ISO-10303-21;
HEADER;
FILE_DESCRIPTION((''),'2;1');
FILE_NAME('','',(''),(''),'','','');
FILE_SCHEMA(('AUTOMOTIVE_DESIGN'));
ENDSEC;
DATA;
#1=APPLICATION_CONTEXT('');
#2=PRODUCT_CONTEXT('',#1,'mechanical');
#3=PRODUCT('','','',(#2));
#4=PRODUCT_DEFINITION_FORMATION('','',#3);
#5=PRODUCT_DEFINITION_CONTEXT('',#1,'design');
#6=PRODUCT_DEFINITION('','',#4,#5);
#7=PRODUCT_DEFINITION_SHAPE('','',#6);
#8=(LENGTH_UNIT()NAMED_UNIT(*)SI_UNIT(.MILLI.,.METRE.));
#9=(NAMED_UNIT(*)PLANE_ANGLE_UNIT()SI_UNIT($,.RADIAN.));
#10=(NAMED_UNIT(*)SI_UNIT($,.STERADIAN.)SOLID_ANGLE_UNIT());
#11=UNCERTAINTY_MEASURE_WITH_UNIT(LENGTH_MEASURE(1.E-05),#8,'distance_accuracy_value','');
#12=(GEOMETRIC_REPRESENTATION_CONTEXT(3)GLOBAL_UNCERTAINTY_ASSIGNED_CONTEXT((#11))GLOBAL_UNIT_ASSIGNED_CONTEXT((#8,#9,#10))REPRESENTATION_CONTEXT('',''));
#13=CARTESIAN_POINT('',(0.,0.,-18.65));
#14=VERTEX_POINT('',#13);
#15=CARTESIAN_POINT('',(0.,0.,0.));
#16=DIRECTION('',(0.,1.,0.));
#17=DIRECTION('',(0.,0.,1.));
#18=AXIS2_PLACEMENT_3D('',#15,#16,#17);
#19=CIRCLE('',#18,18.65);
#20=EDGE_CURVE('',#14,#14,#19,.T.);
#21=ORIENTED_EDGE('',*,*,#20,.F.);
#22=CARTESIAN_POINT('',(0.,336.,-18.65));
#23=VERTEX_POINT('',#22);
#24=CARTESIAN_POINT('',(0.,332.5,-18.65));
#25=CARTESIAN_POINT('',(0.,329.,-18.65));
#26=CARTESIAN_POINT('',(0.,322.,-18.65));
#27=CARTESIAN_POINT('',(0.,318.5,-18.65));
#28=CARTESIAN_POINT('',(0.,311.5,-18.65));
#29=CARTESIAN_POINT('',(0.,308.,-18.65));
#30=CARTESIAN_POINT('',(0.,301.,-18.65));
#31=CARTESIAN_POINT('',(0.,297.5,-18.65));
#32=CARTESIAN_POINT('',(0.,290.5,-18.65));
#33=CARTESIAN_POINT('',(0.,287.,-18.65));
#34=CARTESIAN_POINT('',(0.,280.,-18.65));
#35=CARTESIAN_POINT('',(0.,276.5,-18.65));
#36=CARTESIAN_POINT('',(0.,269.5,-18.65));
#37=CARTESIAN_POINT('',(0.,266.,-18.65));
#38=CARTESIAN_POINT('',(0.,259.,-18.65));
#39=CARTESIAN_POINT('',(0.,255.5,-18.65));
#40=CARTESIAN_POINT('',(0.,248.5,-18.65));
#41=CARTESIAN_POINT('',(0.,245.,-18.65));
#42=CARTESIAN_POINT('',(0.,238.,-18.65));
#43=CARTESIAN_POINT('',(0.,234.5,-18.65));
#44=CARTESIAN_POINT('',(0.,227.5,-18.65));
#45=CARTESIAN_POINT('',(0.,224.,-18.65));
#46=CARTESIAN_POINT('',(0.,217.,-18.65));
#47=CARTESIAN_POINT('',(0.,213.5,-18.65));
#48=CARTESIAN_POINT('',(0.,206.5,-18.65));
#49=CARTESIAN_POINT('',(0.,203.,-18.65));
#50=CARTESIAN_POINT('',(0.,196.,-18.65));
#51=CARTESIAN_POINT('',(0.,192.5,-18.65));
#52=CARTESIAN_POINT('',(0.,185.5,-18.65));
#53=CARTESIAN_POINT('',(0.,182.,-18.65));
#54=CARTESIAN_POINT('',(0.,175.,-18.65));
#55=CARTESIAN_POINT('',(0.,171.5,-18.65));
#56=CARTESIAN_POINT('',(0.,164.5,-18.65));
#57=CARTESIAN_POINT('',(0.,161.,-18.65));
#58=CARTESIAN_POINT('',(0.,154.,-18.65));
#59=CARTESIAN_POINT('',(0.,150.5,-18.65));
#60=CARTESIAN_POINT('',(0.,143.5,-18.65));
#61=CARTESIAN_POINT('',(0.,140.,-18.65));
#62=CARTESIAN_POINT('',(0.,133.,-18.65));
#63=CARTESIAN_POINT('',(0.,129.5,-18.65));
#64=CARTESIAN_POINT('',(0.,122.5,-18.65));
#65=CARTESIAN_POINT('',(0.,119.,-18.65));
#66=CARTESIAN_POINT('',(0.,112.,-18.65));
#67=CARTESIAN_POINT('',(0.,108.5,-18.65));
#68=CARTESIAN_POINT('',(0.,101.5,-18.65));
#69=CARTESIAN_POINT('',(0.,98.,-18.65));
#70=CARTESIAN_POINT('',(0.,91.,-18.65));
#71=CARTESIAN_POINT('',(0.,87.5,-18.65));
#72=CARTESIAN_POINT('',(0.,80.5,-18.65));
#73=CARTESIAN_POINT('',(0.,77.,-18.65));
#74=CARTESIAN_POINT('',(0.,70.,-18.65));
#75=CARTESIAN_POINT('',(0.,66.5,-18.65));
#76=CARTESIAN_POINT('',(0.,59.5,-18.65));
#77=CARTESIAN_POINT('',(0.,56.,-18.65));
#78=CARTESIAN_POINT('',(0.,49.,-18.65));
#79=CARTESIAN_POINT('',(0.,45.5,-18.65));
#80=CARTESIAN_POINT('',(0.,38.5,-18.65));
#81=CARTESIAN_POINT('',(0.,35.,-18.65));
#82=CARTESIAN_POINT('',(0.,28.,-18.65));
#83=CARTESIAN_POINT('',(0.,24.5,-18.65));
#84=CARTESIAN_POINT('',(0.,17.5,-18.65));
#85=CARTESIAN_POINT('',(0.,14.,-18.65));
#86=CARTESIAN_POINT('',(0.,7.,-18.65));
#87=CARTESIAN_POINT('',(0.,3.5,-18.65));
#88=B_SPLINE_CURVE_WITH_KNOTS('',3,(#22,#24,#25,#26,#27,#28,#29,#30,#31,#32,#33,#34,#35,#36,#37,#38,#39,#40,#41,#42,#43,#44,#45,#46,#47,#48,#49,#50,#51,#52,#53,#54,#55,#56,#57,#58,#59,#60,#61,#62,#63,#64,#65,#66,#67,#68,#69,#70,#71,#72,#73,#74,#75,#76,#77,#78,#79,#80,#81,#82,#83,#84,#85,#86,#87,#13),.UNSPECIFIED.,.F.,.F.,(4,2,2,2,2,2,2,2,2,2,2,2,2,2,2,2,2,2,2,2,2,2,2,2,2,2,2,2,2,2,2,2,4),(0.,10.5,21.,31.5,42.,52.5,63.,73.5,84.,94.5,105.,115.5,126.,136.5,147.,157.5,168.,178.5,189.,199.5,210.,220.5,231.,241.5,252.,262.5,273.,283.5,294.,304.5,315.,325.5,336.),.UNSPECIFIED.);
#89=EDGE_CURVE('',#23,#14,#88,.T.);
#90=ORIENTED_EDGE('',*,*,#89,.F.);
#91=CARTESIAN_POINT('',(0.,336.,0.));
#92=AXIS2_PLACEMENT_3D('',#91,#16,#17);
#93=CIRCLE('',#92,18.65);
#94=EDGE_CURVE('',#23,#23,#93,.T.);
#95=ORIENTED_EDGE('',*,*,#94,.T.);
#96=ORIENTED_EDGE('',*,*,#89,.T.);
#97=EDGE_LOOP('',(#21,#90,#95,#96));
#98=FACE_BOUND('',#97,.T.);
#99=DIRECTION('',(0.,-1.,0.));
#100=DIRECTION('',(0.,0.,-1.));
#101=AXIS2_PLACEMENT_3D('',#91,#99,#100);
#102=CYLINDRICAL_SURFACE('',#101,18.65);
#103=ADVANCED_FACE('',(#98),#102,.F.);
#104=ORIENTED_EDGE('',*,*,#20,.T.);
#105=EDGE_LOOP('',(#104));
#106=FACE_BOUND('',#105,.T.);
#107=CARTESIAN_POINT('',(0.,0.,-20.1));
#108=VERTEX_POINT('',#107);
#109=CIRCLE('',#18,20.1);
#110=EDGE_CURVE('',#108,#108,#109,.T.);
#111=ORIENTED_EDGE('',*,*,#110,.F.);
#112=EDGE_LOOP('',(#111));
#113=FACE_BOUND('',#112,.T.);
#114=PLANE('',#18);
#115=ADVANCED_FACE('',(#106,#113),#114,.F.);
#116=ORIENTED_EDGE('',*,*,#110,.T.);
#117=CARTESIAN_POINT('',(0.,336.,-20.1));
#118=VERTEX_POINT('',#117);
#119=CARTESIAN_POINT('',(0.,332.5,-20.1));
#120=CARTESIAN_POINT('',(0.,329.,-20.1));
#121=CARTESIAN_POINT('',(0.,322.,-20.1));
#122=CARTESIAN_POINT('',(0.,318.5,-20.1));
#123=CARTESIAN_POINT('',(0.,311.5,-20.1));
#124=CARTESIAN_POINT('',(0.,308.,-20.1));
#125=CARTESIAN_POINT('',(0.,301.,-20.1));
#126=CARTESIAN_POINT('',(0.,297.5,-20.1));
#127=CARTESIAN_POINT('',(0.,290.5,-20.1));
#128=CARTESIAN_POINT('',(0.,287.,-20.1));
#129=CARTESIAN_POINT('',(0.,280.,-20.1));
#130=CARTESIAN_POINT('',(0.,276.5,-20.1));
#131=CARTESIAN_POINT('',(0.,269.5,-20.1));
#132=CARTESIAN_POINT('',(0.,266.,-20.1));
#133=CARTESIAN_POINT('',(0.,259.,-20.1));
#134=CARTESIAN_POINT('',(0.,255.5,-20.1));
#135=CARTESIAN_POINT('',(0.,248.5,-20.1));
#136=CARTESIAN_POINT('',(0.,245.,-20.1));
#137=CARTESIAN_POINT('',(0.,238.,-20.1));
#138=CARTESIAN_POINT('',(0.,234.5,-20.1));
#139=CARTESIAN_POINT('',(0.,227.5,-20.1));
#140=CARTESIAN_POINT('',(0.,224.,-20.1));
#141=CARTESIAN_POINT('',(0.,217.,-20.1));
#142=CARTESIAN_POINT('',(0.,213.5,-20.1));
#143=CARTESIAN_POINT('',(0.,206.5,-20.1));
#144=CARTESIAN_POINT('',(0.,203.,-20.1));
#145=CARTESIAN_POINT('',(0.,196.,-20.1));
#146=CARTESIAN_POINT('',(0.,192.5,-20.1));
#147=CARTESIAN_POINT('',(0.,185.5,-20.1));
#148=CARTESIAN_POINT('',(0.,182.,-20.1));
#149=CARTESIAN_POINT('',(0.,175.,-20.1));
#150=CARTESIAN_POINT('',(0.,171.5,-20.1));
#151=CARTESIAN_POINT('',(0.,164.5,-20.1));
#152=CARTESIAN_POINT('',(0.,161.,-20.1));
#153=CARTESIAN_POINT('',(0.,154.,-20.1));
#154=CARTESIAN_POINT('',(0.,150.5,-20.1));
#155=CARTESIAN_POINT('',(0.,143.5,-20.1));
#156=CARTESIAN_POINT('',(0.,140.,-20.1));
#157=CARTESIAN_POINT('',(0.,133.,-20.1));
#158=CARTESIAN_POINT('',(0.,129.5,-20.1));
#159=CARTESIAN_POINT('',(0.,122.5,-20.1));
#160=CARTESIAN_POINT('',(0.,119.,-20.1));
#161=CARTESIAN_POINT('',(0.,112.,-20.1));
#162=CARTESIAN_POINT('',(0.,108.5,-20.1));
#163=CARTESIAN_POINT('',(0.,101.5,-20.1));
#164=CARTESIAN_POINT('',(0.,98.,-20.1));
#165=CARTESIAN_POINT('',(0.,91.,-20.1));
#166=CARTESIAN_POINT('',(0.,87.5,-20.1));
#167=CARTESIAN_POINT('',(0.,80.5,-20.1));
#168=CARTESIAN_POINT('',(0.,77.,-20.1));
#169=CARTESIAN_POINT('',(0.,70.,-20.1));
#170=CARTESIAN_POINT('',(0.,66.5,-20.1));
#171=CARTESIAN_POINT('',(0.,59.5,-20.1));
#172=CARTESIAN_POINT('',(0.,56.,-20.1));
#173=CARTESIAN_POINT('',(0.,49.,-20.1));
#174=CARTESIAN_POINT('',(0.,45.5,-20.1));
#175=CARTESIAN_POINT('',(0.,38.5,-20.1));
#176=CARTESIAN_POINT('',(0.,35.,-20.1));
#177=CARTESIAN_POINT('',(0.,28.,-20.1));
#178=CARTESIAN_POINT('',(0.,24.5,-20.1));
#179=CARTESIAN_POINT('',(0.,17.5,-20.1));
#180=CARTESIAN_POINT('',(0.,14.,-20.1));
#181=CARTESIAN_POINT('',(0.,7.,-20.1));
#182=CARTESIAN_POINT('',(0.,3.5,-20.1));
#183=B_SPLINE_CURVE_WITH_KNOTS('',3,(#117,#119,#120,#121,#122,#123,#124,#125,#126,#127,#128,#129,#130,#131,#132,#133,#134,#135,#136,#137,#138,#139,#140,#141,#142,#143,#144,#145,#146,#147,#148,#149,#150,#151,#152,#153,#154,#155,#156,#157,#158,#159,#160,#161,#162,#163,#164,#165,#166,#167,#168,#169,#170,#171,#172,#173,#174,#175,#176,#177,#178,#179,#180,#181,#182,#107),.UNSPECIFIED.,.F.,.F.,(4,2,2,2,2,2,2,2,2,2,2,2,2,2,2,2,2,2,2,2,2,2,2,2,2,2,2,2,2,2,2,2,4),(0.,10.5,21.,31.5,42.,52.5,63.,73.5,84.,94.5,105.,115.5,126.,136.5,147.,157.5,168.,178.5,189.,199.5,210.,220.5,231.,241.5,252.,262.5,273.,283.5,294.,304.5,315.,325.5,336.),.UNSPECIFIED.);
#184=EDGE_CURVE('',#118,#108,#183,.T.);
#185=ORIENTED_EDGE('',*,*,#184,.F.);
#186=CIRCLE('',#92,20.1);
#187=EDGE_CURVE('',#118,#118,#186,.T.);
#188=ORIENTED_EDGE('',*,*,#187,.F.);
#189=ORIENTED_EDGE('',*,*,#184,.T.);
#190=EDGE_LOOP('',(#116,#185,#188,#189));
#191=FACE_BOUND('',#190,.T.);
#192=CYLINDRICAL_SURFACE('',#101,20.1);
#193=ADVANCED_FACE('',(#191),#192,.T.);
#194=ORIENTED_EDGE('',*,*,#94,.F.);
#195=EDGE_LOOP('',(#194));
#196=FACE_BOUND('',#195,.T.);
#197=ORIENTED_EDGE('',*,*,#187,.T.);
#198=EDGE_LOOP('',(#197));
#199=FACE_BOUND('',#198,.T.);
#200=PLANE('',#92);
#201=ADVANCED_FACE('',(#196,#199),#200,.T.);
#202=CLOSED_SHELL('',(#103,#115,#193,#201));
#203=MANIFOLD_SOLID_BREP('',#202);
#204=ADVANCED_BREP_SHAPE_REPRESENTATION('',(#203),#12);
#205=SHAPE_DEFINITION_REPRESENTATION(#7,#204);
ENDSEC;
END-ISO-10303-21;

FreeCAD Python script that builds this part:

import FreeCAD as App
import Part
import Sketcher
from FreeCAD import Vector

doc = App.newDocument("Part")
body = doc.addObject("PartDesign::Body", "Body")

# Sketch on XZ plane
sketch1 = body.newObject("Sketcher::SketchObject", "Sketch")
sketch1.AttachmentSupport = (doc.getObject("XZ_Plane"), [""])
sketch1.MapMode = "FlatFace"
sketch1.addGeometry([
    Part.Circle(Vector(0, 0, 0), Vector(0, 0, 1), 20),
    Part.Circle(Vector(0, 0, 0), Vector(0, 0, 1), 19),
], False)
sketch1.addConstraint([
    Sketcher.Constraint("Coincident", 0, 3, -1, 1),
    Sketcher.Constraint("Coincident", 1, 3, -1, 1),
    Sketcher.Constraint("Diameter", 0, 40.2),
    Sketcher.Constraint("Diameter", 1, 37.3),
])
pad1 = body.newObject("PartDesign::Pad", "Pad")
pad1.Profile = sketch1
pad1.Length = 336
pad1.Reversed = True

doc.recompute()
